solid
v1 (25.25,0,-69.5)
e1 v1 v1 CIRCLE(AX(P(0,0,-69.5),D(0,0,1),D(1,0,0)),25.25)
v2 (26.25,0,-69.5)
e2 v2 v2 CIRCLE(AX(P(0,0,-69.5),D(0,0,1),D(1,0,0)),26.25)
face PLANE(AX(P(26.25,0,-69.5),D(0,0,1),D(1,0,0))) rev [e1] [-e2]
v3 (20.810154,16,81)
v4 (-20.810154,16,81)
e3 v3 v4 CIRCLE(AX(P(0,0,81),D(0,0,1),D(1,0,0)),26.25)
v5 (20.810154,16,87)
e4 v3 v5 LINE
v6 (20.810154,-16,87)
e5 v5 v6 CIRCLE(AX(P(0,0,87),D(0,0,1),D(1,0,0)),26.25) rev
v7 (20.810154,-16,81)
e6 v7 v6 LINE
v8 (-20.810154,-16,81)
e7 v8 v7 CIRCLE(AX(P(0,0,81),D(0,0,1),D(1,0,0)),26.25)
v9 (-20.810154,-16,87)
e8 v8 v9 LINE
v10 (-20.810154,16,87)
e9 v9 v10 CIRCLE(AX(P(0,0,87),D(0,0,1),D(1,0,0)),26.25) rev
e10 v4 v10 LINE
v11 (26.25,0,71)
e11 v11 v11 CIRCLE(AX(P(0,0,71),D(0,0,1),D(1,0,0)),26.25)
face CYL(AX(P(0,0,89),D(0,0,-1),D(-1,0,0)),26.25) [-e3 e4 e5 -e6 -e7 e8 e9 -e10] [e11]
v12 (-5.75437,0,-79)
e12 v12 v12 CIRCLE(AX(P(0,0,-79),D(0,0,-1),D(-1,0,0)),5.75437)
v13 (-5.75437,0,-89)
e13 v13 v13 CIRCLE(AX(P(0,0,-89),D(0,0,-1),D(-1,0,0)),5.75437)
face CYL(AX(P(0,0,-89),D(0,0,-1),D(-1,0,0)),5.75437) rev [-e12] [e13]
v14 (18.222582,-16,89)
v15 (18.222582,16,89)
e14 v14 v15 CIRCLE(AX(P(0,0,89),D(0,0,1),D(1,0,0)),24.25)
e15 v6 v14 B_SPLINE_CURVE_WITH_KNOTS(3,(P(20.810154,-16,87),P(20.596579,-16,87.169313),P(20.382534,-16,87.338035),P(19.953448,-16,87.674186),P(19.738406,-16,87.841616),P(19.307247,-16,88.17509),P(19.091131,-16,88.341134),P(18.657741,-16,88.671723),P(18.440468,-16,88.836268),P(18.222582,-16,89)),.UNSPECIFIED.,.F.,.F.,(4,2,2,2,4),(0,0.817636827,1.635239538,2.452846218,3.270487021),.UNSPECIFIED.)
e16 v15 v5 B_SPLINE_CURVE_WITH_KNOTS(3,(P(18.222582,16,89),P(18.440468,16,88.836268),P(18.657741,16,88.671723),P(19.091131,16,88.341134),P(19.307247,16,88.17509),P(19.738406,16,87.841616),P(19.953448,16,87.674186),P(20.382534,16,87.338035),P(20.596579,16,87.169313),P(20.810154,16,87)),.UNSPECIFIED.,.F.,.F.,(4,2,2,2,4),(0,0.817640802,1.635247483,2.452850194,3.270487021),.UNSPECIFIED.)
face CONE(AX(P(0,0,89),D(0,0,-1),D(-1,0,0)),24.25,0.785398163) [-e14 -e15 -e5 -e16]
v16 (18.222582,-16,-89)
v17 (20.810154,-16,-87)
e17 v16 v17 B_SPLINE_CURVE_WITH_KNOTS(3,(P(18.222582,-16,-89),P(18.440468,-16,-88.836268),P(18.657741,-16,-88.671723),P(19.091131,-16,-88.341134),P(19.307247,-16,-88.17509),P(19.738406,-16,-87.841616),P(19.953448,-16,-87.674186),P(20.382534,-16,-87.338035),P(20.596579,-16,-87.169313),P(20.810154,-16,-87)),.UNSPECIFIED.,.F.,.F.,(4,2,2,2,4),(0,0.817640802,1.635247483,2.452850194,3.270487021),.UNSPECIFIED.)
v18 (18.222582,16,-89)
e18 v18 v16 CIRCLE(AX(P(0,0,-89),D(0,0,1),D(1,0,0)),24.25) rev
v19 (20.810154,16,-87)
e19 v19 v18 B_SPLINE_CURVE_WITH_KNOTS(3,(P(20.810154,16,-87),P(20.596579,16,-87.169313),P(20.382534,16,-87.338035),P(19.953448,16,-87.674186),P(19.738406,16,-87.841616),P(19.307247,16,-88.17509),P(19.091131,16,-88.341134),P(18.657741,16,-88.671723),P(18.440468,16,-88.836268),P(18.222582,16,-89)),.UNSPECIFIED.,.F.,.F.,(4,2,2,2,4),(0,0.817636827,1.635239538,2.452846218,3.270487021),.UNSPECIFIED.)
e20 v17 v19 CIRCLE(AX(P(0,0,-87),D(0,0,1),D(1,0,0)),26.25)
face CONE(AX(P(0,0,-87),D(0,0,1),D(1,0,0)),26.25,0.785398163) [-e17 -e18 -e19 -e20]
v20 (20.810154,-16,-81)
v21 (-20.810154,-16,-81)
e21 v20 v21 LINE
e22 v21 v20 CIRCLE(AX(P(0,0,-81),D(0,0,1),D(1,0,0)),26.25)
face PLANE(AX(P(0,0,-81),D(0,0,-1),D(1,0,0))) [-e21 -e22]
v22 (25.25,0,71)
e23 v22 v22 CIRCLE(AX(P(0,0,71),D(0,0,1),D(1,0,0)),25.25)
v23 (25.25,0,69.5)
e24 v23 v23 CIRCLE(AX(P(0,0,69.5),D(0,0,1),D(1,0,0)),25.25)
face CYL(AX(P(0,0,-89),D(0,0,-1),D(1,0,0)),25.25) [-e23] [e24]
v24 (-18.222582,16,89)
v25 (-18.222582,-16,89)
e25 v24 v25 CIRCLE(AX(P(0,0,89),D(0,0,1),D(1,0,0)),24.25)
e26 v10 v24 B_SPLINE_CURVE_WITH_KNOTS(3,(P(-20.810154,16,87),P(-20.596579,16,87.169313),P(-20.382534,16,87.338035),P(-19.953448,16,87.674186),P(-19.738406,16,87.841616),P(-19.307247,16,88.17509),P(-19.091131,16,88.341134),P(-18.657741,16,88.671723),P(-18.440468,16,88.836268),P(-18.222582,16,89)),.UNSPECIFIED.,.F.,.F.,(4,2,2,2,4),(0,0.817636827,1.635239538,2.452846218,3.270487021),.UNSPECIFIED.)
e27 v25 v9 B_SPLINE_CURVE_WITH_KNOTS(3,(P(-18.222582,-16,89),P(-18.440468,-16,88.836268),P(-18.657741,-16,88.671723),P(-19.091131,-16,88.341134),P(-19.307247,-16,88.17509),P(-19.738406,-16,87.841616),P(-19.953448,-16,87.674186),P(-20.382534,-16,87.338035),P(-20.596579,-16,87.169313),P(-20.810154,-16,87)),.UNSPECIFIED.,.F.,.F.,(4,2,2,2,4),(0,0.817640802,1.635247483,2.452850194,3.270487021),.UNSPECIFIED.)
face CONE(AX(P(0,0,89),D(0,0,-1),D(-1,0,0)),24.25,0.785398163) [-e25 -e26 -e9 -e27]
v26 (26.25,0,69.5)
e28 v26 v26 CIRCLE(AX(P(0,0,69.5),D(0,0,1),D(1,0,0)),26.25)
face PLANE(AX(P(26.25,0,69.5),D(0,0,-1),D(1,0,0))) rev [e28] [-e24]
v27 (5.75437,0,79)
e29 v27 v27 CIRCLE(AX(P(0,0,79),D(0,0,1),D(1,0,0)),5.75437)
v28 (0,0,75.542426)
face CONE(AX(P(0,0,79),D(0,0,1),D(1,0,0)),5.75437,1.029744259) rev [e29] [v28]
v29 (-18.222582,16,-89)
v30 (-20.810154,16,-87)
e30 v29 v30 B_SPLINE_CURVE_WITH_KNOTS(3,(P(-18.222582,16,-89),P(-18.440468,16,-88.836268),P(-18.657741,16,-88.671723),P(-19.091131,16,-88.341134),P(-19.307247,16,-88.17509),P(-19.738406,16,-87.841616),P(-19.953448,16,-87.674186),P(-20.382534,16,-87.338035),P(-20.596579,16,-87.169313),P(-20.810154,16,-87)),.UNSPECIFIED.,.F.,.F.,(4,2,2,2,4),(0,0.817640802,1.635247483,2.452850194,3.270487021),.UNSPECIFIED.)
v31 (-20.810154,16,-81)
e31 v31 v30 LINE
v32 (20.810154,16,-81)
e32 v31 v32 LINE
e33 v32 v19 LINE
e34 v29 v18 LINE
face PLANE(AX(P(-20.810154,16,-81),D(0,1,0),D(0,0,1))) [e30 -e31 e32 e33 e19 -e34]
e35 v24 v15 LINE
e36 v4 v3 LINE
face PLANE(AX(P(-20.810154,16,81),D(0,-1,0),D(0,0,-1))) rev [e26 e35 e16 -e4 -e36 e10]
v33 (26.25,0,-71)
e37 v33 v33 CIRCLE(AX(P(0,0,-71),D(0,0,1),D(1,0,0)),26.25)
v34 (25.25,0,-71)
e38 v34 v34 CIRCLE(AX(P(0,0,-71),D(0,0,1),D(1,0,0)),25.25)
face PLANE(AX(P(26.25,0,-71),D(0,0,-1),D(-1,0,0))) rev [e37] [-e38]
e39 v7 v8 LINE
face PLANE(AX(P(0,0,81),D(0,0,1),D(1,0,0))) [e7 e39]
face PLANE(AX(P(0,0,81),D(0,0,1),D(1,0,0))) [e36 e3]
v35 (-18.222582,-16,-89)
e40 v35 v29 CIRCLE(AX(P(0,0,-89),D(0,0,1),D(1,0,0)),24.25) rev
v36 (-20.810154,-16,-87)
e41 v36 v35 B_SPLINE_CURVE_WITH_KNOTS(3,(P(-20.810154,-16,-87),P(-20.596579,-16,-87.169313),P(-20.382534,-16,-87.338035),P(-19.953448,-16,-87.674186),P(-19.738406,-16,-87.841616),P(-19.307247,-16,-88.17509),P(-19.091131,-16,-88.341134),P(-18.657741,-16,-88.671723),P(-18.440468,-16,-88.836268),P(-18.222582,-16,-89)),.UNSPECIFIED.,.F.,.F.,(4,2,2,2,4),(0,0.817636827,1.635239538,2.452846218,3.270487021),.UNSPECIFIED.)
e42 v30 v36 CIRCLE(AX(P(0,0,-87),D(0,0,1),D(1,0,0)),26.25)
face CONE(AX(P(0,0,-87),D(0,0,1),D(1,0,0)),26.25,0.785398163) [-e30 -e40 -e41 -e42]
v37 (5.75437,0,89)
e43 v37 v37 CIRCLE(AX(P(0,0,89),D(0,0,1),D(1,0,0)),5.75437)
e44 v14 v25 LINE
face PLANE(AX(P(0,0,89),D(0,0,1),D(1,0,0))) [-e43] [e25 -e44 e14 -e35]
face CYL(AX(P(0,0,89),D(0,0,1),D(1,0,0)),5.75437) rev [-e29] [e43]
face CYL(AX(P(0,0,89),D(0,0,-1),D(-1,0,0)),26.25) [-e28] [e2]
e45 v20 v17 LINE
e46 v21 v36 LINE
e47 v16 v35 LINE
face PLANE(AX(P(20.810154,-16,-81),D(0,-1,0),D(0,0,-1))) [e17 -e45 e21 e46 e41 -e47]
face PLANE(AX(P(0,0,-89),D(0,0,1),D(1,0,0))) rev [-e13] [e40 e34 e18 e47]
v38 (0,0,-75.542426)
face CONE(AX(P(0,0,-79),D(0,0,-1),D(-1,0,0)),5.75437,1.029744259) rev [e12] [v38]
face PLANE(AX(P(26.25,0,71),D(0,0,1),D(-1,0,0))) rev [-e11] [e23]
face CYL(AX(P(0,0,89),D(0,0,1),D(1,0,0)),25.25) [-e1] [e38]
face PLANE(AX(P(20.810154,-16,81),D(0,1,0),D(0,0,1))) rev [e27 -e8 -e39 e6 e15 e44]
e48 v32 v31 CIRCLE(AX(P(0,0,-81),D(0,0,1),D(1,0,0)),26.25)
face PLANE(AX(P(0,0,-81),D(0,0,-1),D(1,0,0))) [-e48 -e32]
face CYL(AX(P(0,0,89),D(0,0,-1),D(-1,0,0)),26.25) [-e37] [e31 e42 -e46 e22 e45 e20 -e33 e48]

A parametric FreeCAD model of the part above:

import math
import FreeCAD as App
import Part
import Sketcher
Q = App.Units.Quantity


def edges_at(feature, points):
    """Names of the edges that pass closest to the given points."""
    edges = feature.Shape.Edges
    near = lambda p: min(range(len(edges)), key=lambda i: edges[i].distToShape(Part.Vertex(*p))[0])
    return sorted({f"Edge{near(p) + 1}" for p in points})


def add_polygon(sketch, points):
    """Adds a closed chain of lines whose ends are joined by coincident constraints."""
    first, n = sketch.GeometryCount, len(points)
    for a, b in zip(points, points[1:] + points[:1]):
        sketch.addGeometry(Part.LineSegment(App.Vector(*a, 0), App.Vector(*b, 0)), False)
    for i in range(n):
        sketch.addConstraint(Sketcher.Constraint("Coincident", first + i, 2, first + (i + 1) % n, 1))

doc = App.newDocument("Part")
body = doc.addObject("PartDesign::Body", "Body")

sketch1 = body.newObject("Sketcher::SketchObject", "Sketch")
sketch1.AttachmentSupport = (doc.getObject("XY_Plane"), [""])
sketch1.MapMode = "FlatFace"
sketch1.addGeometry(Part.Circle(App.Vector(0, 0, 0), App.Vector(0, 0, 1), 26.25), False)
sketch1.addConstraint(Sketcher.Constraint("Coincident", 0, 3, -1, 1))
sketch1.addConstraint(Sketcher.Constraint("Diameter", 0, 52.5))
pad1 = body.newObject("PartDesign::Pad", "Pad")
pad1.Profile = sketch1
pad1.Length = 178
pad1.Midplane = True

sketch2 = body.newObject("Sketcher::SketchObject", "Sketch001")
sketch2.AttachmentSupport = (doc.getObject("XY_Plane"), [""])
sketch2.MapMode = "FlatFace"
sketch2.AttachmentOffset = App.Placement(App.Vector(0, 0, 89), App.Rotation())
sketch2.addGeometry(Part.LineSegment(App.Vector(-20.810154, 16, 0), App.Vector(20.810154, 16, 0)), False)
sketch2.addGeometry(Part.ArcOfCircle(Part.Circle(App.Vector(0, 0, 0), App.Vector(0, 0, 1), 26.25), math.radians(37.555079), math.radians(142.444921)), False)
sketch2.addGeometry(Part.LineSegment(App.Vector(20.810154, -16, 0), App.Vector(-20.810154, -16, 0)), False)
sketch2.addGeometry(Part.ArcOfCircle(Part.Circle(App.Vector(0, 0, 0), App.Vector(0, 0, 1), 26.25), math.radians(-142.444921), math.radians(-37.555079)), False)
sketch2.addConstraint(Sketcher.Constraint("Coincident", 0, 1, 1, 2))
sketch2.addConstraint(Sketcher.Constraint("Coincident", 1, 1, 0, 2))
sketch2.addConstraint(Sketcher.Constraint("Coincident", 2, 1, 3, 2))
sketch2.addConstraint(Sketcher.Constraint("Coincident", 3, 1, 2, 2))
sketch2.addConstraint(Sketcher.Constraint("Horizontal", 0))
sketch2.addConstraint(Sketcher.Constraint("Horizontal", 2))
sketch2.addConstraint(Sketcher.Constraint("Coincident", 1, 3, -1, 1))
sketch2.addConstraint(Sketcher.Constraint("Coincident", 3, 3, -1, 1))
sketch2.addConstraint(Sketcher.Constraint("Equal", 1, 3))
sketch2.addConstraint(Sketcher.Constraint("Vertical", 1, 1, 2, 1))
sketch2.addConstraint(Sketcher.Constraint("Radius", 1, 26.25))
sketch2.addConstraint(Sketcher.Constraint("DistanceY", -1, 1, 0, 1, 16.0))
pocket1 = body.newObject("PartDesign::Pocket", "Pocket")
pocket1.Profile = sketch2
pocket1.Length = 8

sketch3 = body.newObject("Sketcher::SketchObject", "Sketch002")
sketch3.AttachmentSupport = (doc.getObject("YZ_Plane"), [""])
sketch3.MapMode = "FlatFace"
add_polygon(sketch3, [(0, 75.542426), (0, 89), (-5.75437, 89), (-5.75437, 79)])
sketch3.addConstraint(Sketcher.Constraint("Vertical", 0))
sketch3.addConstraint(Sketcher.Constraint("Horizontal", 1))
sketch3.addConstraint(Sketcher.Constraint("Vertical", 2))
sketch3.addConstraint(Sketcher.Constraint("PointOnObject", 0, 2, -2))
sketch3.addConstraint(Sketcher.Constraint("DistanceY", 2, 2, 2, 1, 10.0))
sketch3.addConstraint(Sketcher.Constraint("Angle", 3, Q("-31 deg")))
sketch3.addConstraint(Sketcher.Constraint("DistanceY", -1, 1, 0, 2, 89.0))
sketch3.addConstraint(Sketcher.Constraint("DistanceX", 1, 2, 1, 1, 5.75437))
groove = body.newObject("PartDesign::Groove", "Groove")
groove.Profile = sketch3
groove.ReferenceAxis = (sketch3, ["V_Axis"])
groove.Angle = 360
doc.recompute()

mirrored = body.newObject("PartDesign::Mirrored", "Mirrored")
mirrored.Originals = [pocket1, groove]
mirrored.MirrorPlane = (doc.getObject("XY_Plane"), [""])
body.Tip = mirrored

sketch4 = body.newObject("Sketcher::SketchObject", "Sketch003")
sketch4.AttachmentSupport = (doc.getObject("XZ_Plane"), [""])
sketch4.MapMode = "FlatFace"
add_polygon(sketch4, [(25.25, -71), (25.25, -69.5), (26.25, -69.5), (26.25, -71)])
sketch4.addConstraint(Sketcher.Constraint("Vertical", 0))
sketch4.addConstraint(Sketcher.Constraint("Horizontal", 1))
sketch4.addConstraint(Sketcher.Constraint("Vertical", 2))
sketch4.addConstraint(Sketcher.Constraint("Horizontal", 3))
sketch4.addConstraint(Sketcher.Constraint("DistanceX", 1, 1, 1, 2, 1.0))
sketch4.addConstraint(Sketcher.Constraint("DistanceY", 0, 1, 0, 2, 1.5))
sketch4.addConstraint(Sketcher.Constraint("DistanceY", 2, 2, -1, 1, 71.0))
sketch4.addConstraint(Sketcher.Constraint("DistanceX", -1, 1, 0, 2, 25.25))
groove2 = body.newObject("PartDesign::Groove", "Groove001")
groove2.Profile = sketch4
groove2.ReferenceAxis = (sketch4, ["V_Axis"])
groove2.Angle = 360
doc.recompute()

mirrored2 = body.newObject("PartDesign::Mirrored", "Mirrored001")
mirrored2.Originals = [groove2]
mirrored2.MirrorPlane = (doc.getObject("XY_Plane"), [""])
body.Tip = mirrored2
doc.recompute()

chamfer = body.newObject("PartDesign::Chamfer", "Chamfer")
chamfer.Base = (mirrored2, edges_at(mirrored2, [
    (-26.25, 0, -89),
    (24.853, -8.45, -89),
    (-26.25, 0, 89),
    (24.853, 8.45, 89),
]))
chamfer.Size = 2

doc.recompute()
